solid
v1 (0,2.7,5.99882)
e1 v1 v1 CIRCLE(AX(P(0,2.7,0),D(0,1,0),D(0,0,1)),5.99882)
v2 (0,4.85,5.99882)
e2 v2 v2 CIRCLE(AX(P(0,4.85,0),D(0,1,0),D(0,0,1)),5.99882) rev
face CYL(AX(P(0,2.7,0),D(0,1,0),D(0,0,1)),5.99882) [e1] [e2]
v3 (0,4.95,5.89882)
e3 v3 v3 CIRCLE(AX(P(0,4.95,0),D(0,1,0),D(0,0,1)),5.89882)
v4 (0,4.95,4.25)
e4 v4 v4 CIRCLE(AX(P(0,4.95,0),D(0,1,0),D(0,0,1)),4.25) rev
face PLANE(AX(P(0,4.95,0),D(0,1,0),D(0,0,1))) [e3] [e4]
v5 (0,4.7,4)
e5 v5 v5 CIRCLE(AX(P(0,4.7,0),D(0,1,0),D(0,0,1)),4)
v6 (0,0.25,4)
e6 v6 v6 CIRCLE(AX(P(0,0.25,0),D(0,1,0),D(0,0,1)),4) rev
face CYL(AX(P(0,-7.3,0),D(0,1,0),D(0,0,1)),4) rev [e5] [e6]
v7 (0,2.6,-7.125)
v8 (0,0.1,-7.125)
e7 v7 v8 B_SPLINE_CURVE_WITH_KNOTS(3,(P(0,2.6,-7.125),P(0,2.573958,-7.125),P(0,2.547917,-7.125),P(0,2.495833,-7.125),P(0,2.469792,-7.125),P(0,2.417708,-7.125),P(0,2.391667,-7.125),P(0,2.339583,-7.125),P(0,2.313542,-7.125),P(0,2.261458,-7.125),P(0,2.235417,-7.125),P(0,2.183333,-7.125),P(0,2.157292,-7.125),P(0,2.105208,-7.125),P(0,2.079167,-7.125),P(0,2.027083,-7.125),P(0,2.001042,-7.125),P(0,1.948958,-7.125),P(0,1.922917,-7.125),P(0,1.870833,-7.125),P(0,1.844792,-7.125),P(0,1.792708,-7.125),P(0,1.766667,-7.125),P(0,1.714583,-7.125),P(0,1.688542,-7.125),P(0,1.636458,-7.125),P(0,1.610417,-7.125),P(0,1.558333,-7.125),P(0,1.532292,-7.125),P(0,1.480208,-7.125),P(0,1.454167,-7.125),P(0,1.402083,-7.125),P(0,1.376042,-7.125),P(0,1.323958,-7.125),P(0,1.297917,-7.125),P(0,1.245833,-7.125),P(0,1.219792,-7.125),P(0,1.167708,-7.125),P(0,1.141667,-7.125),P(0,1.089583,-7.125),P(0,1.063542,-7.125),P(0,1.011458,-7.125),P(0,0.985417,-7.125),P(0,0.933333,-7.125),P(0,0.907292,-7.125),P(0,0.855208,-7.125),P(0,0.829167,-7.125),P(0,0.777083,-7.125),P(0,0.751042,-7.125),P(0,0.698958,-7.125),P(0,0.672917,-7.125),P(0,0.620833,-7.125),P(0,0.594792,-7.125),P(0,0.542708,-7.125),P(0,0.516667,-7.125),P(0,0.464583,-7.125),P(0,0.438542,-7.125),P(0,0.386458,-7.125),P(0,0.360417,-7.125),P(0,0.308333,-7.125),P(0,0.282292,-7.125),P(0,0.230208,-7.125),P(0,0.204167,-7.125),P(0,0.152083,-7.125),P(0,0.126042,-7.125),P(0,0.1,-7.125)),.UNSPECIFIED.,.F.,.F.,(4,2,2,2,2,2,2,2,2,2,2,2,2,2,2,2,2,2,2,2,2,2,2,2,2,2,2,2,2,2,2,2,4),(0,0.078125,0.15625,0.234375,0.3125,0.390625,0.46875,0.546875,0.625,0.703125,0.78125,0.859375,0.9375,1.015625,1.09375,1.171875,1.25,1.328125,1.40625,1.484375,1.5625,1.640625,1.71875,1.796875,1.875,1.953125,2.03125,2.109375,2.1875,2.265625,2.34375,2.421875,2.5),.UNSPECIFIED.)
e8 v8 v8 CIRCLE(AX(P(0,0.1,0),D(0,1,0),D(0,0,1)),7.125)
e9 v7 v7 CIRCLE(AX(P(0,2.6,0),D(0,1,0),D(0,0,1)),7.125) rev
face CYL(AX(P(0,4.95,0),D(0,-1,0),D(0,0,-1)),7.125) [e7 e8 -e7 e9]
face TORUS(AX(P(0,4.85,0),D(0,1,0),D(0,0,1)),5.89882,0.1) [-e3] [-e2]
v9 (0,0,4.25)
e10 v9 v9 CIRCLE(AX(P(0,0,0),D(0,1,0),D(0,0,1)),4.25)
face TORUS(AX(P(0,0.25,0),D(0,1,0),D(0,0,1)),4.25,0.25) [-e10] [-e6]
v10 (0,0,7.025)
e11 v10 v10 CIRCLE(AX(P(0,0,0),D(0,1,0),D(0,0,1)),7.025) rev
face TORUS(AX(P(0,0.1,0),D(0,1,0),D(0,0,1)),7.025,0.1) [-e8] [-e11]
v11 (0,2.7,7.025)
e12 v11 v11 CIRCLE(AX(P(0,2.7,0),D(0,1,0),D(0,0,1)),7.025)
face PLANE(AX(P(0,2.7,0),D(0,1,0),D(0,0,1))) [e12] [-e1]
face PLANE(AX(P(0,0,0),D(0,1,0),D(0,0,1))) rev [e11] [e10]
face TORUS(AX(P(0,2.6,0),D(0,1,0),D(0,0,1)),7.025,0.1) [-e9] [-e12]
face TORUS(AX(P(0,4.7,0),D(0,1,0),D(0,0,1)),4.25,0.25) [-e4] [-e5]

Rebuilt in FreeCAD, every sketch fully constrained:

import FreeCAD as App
import Part
import Sketcher

V = App.Vector
Q = App.Units.Quantity


def edges_at(feature, points):
    """Names of the edges that pass closest to the given points."""
    edges = feature.Shape.Edges
    near = lambda p: min(range(len(edges)), key=lambda i: edges[i].distToShape(Part.Vertex(*p))[0])
    return sorted({f"Edge{near(p) + 1}" for p in points})

doc = App.newDocument("Part")
body = doc.addObject("PartDesign::Body", "Body")

sketch1 = body.newObject("Sketcher::SketchObject", "Sketch")
sketch1.AttachmentSupport = (doc.getObject("XZ_Plane"), [""])
sketch1.MapMode = "FlatFace"
sketch1.addGeometry(Part.Circle(V(0, 0, 0), V(0, 0, 1), 7), False)
sketch1.addConstraint([
    Sketcher.Constraint("Coincident", 0, 3, -1, 1),
    Sketcher.Constraint("Diameter", 0, Q("14.25 mm")),
])
pad1 = body.newObject("PartDesign::Pad", "Pad")
pad1.Profile = sketch1
pad1.Length = 4.95
pad1.Reversed = True

sketch2 = body.newObject("Sketcher::SketchObject", "Sketch001")
sketch2.AttachmentSupport = (doc.getObject("XZ_Plane"), [""])
sketch2.MapMode = "FlatFace"
sketch2.AttachmentOffset = App.Placement(V(0, 0, -4.95), App.Rotation())
sketch2.addGeometry(Part.Circle(V(0, 0, 0), V(0, 0, 1), 4), False)
sketch2.addConstraint([
    Sketcher.Constraint("Coincident", 0, 3, -1, 1),
    Sketcher.Constraint("Diameter", 0, Q("8 mm")),
])
pocket1 = body.newObject("PartDesign::Pocket", "Pocket")
pocket1.Profile = sketch2
pocket1.Length = 12.25
pocket1.Reversed = True

sketch3 = body.newObject("Sketcher::SketchObject", "Sketch002")
sketch3.AttachmentSupport = (doc.getObject("XZ_Plane"), [""])
sketch3.MapMode = "FlatFace"
sketch3.AttachmentOffset = App.Placement(V(0, 0, -2.7), App.Rotation())
sketch3.addGeometry([
    Part.Circle(V(0, 0, 0), V(0, 0, 1), 7),
    Part.Circle(V(0, 0, 0), V(0, 0, 1), 6),
], False)
sketch3.addConstraint([
    Sketcher.Constraint("Coincident", 0, 3, -1, 1),
    Sketcher.Constraint("Coincident", 1, 3, -1, 1),
    Sketcher.Constraint("Diameter", 0, Q("14.25 mm")),
    Sketcher.Constraint("Diameter", 1, Q("11.997639 mm")),
])
pocket2 = body.newObject("PartDesign::Pocket", "Pocket001")
pocket2.Profile = sketch3
pocket2.Length = 2.25
doc.recompute()

fillet = body.newObject("PartDesign::Fillet", "Fillet")
fillet.Base = (pocket2, edges_at(pocket2, [(0, 2.7, 7.125), (0, 4.95, -5.999), (0, 0, 7.125)]))
fillet.Radius = 0.1
doc.recompute()

fillet2 = body.newObject("PartDesign::Fillet", "Fillet001")
fillet2.Base = (fillet, edges_at(fillet, [(0, 0, -4), (0, 4.95, -4)]))
fillet2.Radius = 0.25

doc.recompute()
